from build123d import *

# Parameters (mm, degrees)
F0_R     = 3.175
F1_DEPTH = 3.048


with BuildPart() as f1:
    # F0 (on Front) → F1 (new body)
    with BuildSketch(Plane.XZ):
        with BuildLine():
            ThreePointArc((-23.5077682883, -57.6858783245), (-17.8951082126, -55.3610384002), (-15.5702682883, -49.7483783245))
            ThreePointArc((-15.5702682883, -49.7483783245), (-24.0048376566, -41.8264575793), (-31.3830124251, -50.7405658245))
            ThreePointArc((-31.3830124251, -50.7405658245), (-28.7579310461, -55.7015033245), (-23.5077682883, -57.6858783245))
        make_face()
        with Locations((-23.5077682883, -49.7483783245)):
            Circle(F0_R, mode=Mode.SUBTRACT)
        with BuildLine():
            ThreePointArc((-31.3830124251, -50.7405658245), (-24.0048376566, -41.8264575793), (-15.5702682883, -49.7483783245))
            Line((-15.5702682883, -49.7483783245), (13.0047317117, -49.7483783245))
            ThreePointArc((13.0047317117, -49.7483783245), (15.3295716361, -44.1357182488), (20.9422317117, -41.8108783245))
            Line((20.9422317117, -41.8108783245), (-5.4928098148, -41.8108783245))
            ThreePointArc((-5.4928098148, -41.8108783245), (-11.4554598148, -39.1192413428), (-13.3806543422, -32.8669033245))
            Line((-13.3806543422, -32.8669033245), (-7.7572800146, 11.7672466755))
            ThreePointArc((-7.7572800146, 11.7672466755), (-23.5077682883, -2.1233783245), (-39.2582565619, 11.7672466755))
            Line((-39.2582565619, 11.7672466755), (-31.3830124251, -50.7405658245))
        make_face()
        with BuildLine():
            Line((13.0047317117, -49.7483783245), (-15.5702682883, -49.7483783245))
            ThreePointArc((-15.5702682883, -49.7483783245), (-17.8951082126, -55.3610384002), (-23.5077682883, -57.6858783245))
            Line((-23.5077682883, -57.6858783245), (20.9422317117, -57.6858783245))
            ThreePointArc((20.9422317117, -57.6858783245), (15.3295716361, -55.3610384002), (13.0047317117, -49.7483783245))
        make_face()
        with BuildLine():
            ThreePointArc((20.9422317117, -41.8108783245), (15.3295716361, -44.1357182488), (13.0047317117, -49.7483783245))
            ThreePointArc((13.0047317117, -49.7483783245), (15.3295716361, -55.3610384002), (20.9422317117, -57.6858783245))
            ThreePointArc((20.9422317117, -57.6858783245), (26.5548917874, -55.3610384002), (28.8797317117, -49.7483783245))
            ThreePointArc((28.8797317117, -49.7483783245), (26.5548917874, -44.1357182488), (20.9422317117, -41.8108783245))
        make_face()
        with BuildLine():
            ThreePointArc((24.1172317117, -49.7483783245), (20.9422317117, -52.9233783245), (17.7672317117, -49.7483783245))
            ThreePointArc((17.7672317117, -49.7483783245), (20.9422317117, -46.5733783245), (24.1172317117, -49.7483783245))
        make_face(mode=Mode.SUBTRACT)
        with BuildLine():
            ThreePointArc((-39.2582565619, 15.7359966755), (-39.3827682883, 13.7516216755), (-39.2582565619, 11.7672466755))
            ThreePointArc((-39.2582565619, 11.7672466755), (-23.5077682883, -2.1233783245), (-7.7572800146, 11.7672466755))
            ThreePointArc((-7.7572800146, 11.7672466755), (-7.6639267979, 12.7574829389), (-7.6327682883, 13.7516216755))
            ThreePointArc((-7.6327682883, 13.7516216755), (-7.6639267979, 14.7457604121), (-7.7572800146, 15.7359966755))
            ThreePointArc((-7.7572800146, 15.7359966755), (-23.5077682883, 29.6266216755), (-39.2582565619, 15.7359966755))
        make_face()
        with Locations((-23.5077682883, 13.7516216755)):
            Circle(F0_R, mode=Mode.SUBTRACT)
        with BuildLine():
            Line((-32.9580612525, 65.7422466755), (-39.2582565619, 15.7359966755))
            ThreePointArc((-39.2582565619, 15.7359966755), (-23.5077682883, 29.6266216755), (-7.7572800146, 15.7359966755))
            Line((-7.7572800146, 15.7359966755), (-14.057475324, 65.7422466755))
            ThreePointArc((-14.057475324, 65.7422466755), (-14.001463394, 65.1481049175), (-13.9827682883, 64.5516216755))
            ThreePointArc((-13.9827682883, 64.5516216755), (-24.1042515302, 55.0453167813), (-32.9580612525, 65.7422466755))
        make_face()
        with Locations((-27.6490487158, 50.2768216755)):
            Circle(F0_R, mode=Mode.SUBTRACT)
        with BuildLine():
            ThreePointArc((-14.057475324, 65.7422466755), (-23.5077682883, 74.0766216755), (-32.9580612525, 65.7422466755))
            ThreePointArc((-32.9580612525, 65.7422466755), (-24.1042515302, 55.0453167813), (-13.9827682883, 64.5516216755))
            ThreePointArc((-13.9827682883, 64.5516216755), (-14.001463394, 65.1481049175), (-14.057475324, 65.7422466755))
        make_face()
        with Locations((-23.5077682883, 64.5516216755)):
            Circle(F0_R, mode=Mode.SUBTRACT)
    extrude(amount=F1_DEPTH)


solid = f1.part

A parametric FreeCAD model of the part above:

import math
import FreeCAD as App
import Part
import Sketcher
Q = App.Units.Quantity

doc = App.newDocument("Part")
body = doc.addObject("PartDesign::Body", "Body")

# Sketch on XZ plane
sketch1 = body.newObject("Sketcher::SketchObject", "Sketch")
sketch1.AttachmentSupport = (doc.getObject("XZ_Plane"), [""])
sketch1.MapMode = "FlatFace"
sketch1.addGeometry([
    Part.LineSegment(App.Vector(20.9, -41.8, 0), App.Vector(-5.5, -41.8, 0)),  # 0
    Part.ArcOfCircle(Part.Circle(App.Vector(-5.5, -33.9, 0), App.Vector(0, 0, 1), 8), math.radians(173), math.radians(270)),  # 1
    Part.LineSegment(App.Vector(-13.4, -32.9, 0), App.Vector(-7.8, 11.8, 0)),  # 2
    Part.ArcOfCircle(Part.Circle(App.Vector(-23.5, 13.8, 0), App.Vector(0, 0, 1), 15.9), math.radians(-7.18), math.radians(0)),  # 3
    Part.ArcOfCircle(Part.Circle(App.Vector(-23.5, 13.8, 0), App.Vector(0, 0, 1), 15.9), math.radians(0), math.radians(7.18)),  # 4
    Part.LineSegment(App.Vector(-7.8, 15.7, 0), App.Vector(-14.1, 65.7, 0)),  # 5
    Part.ArcOfCircle(Part.Circle(App.Vector(-23.5, 64.6, 0), App.Vector(0, 0, 1), 9.5), math.radians(7), math.radians(173)),  # 6
    Part.LineSegment(App.Vector(-33, 65.7, 0), App.Vector(-39.3, 15.7, 0)),  # 7
    Part.ArcOfCircle(Part.Circle(App.Vector(-23.5, 13.8, 0), App.Vector(0, 0, 1), 15.9), math.radians(172.82), math.radians(187.18)),  # 8
    Part.LineSegment(App.Vector(-39.3, 11.8, 0), App.Vector(-31.4, -50.7, 0)),  # 9
    Part.ArcOfCircle(Part.Circle(App.Vector(-23.5, -49.7, 0), App.Vector(0, 0, 1), 7.9), math.radians(-173), math.radians(-90)),  # 10
    Part.LineSegment(App.Vector(-23.5, -57.7, 0), App.Vector(20.9, -57.7, 0)),  # 11
    Part.ArcOfCircle(Part.Circle(App.Vector(20.9, -49.7, 0), App.Vector(0, 0, 1), 7.9), math.radians(-90), math.radians(0)),  # 12
    Part.ArcOfCircle(Part.Circle(App.Vector(20.9, -49.7, 0), App.Vector(0, 0, 1), 7.9), math.radians(0), math.radians(90)),  # 13
    Part.Circle(App.Vector(-23.5, -49.7, 0), App.Vector(0, 0, 1), 3.2),  # 14
    Part.Circle(App.Vector(20.9, -49.7, 0), App.Vector(0, 0, 1), 3.2),  # 15
    Part.Circle(App.Vector(-23.5, 13.8, 0), App.Vector(0, 0, 1), 3.2),  # 16
    Part.Circle(App.Vector(-27.6, 50.3, 0), App.Vector(0, 0, 1), 3.2),  # 17
    Part.Circle(App.Vector(-23.5, 64.6, 0), App.Vector(0, 0, 1), 3.2),  # 18
], False)
sketch1.addConstraint([
    Sketcher.Constraint("Tangent", 0, 2, 1, 2),
    Sketcher.Constraint("Tangent", 1, 1, 2, 1),
    Sketcher.Constraint("Tangent", 2, 2, 3, 1),
    Sketcher.Constraint("Tangent", 3, 2, 4, 1),
    Sketcher.Constraint("Tangent", 4, 2, 5, 1),
    Sketcher.Constraint("Tangent", 5, 2, 6, 1),
    Sketcher.Constraint("Tangent", 6, 2, 7, 1),
    Sketcher.Constraint("Tangent", 7, 2, 8, 1),
    Sketcher.Constraint("Tangent", 8, 2, 9, 1),
    Sketcher.Constraint("Tangent", 9, 2, 10, 1),
    Sketcher.Constraint("Tangent", 10, 2, 11, 1),
    Sketcher.Constraint("Tangent", 11, 2, 12, 1),
    Sketcher.Constraint("Tangent", 12, 2, 13, 1),
    Sketcher.Constraint("Tangent", 13, 2, 0, 1),
    Sketcher.Constraint("Horizontal", 0),
    Sketcher.Constraint("Horizontal", 11),
    Sketcher.Constraint("Coincident", 8, 3, 3, 3),
    Sketcher.Constraint("Coincident", 14, 3, 10, 3),
    Sketcher.Constraint("Coincident", 15, 3, 12, 3),
    Sketcher.Constraint("Coincident", 16, 3, 3, 3),
    Sketcher.Constraint("Coincident", 18, 3, 6, 3),
    Sketcher.Constraint("Equal", 3, 4),
    Sketcher.Constraint("Equal", 4, 8),
    Sketcher.Constraint("Equal", 10, 12),
    Sketcher.Constraint("Equal", 12, 13),
    Sketcher.Constraint("Equal", 14, 15),
    Sketcher.Constraint("Equal", 15, 16),
    Sketcher.Constraint("Equal", 16, 17),
    Sketcher.Constraint("Equal", 17, 18),
    Sketcher.Constraint("Parallel", 2, 7),
    Sketcher.Constraint("Parallel", 5, 9),
    Sketcher.Constraint("Horizontal", 16, 3, 3, 2),
    Sketcher.Constraint("Horizontal", 5, 2, 6, 2),
    Sketcher.Constraint("Horizontal", 15, 3, 12, 2),
    Sketcher.Constraint("Vertical", 8, 3, 10, 3),
    Sketcher.Constraint("Diameter", 14, Q("0.25 in")),
    Sketcher.Constraint("Radius", 1, Q("0.313 in")),
    Sketcher.Constraint("Radius", 3, Q("0.625 in")),
    Sketcher.Constraint("Radius", 6, Q("0.375 in")),
    Sketcher.Constraint("Radius", 10, Q("0.3125 in")),
    Sketcher.Constraint("DistanceY", 4, 3, 6, 3, Q("2 in")),
    Sketcher.Constraint("DistanceX", 11, 1, 11, 2, Q("1.75 in")),
    Sketcher.Constraint("DistanceY", 17, 3, 6, 3, Q("0.562 in")),
    Sketcher.Constraint("DistanceX", 1, 3, -1, 1, Q("5.49281 mm")),
    Sketcher.Constraint("DistanceY", 1, 3, -1, 1, Q("33.860678 mm")),
    Sketcher.Constraint("DistanceX", 17, 3, -1, 1, Q("27.649049 mm")),
])
pad1 = body.newObject("PartDesign::Pad", "Pad")
pad1.Profile = sketch1
pad1.Length = Q("0.12 in")

doc.recompute()
